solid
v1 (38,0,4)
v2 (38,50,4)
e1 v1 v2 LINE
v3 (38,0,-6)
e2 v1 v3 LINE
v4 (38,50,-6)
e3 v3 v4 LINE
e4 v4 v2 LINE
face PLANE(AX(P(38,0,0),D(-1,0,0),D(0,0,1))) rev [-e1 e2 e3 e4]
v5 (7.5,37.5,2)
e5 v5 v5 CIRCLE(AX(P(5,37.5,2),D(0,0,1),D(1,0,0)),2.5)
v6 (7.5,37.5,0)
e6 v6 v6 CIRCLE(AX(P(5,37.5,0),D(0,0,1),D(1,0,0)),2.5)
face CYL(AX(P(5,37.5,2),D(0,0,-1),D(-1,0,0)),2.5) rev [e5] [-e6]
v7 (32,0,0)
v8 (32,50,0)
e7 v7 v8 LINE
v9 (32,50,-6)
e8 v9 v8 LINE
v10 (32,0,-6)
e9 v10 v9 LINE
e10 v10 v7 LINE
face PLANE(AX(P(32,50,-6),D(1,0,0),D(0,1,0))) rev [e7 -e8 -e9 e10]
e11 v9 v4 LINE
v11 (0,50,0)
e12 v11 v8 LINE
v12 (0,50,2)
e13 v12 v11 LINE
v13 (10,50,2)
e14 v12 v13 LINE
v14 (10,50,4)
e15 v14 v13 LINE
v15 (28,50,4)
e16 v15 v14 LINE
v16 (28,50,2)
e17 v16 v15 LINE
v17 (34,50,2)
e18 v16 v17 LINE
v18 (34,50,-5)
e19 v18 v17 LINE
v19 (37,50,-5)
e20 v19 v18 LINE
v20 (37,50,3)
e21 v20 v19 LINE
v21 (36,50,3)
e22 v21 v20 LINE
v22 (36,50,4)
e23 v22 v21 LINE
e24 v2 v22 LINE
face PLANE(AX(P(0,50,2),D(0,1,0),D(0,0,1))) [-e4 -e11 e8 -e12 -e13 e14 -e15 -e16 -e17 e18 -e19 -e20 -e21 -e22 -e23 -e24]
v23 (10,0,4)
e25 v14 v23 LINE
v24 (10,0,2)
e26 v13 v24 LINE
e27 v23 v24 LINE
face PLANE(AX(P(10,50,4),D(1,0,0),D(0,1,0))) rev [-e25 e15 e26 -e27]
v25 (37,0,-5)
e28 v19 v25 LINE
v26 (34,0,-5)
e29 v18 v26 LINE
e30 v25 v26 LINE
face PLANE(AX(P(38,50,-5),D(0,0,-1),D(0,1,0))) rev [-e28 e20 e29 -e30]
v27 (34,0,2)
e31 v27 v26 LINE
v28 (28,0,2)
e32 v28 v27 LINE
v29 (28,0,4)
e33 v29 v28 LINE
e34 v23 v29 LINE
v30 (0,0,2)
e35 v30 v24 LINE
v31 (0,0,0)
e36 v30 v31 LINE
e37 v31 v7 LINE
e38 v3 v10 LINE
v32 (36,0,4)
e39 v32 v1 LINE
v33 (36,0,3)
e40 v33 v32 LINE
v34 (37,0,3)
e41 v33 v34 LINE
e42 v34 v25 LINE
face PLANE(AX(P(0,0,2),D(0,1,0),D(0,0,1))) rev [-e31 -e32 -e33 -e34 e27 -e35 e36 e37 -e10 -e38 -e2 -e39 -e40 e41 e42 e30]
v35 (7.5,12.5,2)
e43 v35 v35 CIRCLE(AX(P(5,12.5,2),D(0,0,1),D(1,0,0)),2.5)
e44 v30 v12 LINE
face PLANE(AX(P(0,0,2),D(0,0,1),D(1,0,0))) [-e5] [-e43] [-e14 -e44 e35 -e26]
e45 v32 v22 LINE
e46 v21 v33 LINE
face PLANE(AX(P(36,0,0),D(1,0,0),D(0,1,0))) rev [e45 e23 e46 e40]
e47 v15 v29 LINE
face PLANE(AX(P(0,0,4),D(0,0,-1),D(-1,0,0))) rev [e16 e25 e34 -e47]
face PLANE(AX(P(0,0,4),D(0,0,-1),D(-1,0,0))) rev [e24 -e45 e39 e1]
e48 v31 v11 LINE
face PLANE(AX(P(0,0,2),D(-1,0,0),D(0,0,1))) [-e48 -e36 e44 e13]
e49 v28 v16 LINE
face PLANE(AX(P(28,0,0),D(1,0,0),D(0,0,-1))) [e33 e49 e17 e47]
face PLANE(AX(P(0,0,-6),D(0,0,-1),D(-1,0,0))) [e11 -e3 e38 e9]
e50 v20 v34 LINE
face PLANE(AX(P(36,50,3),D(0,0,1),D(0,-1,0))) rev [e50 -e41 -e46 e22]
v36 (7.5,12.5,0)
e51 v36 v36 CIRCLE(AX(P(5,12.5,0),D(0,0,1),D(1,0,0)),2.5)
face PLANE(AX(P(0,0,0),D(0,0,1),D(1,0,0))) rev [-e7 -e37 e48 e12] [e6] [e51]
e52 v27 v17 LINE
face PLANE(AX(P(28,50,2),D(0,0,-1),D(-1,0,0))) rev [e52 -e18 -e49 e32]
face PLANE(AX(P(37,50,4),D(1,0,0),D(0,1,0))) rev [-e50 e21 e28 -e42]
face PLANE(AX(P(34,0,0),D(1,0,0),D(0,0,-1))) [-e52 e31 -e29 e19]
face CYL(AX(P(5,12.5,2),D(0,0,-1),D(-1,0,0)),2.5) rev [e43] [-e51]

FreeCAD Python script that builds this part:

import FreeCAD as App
import Part
import Sketcher
Q = App.Units.Quantity

doc = App.newDocument("Part")
body = doc.addObject("PartDesign::Body", "Body")

# Sketch on XY plane
sketch1 = doc.addObject("Sketcher::SketchObject", "Sketch")
body.addObject(sketch1)
sketch1.AttachmentSupport = (doc.XY_Plane, [""])
sketch1.MapMode = "FlatFace"
sketch1.addGeometry(Part.LineSegment(App.Vector(0, 50, 0), App.Vector(0, 0, 0)), False)
sketch1.addGeometry(Part.LineSegment(App.Vector(0, 0, 0), App.Vector(12, 0, 0)), False)
sketch1.addGeometry(Part.LineSegment(App.Vector(12, 0, 0), App.Vector(12, 50, 0)), False)
sketch1.addGeometry(Part.LineSegment(App.Vector(12, 50, 0), App.Vector(0, 50, 0)), False)
sketch1.addGeometry(Part.Circle(App.Vector(5, 12.5, 0), App.Vector(0, 0, 1), 2.5), False)
sketch1.addGeometry(Part.Circle(App.Vector(5, 37.5, 0), App.Vector(0, 0, 1), 2.5), False)
sketch1.addConstraint(Sketcher.Constraint("Coincident", 0, 2, 1, 1))
sketch1.addConstraint(Sketcher.Constraint("Coincident", 1, 2, 2, 1))
sketch1.addConstraint(Sketcher.Constraint("Coincident", 2, 2, 3, 1))
sketch1.addConstraint(Sketcher.Constraint("Coincident", 3, 2, 0, 1))
sketch1.addConstraint(Sketcher.Constraint("Vertical", 0))
sketch1.addConstraint(Sketcher.Constraint("Horizontal", 1))
sketch1.addConstraint(Sketcher.Constraint("Vertical", 2))
sketch1.addConstraint(Sketcher.Constraint("Horizontal", 3))
sketch1.addConstraint(Sketcher.Constraint("Coincident", 0, 2, -1, 1))
sketch1.addConstraint(Sketcher.Constraint("Equal", 4, 5))
sketch1.addConstraint(Sketcher.Constraint("Vertical", 4, 3, 5, 3))
sketch1.addConstraint(Sketcher.Constraint("Diameter", 4, Q("5 mm")))
sketch1.addConstraint(Sketcher.Constraint("DistanceX", 1, 1, 1, 2, Q("12 mm")))
sketch1.addConstraint(Sketcher.Constraint("DistanceY", 0, 2, 0, 1, Q("50 mm")))
sketch1.addConstraint(Sketcher.Constraint("DistanceX", -1, 1, 4, 3, Q("5 mm")))
sketch1.addConstraint(Sketcher.Constraint("DistanceY", 4, 3, 5, 3, Q("25 mm")))
sketch1.addConstraint(Sketcher.Constraint("DistanceY", -1, 1, 4, 3, Q("12.5 mm")))
pad1 = doc.addObject("PartDesign::Pad", "Pad")
body.addObject(pad1)
pad1.Profile = sketch1
pad1.Length = 2

# Sketch on XY plane
sketch2 = doc.addObject("Sketcher::SketchObject", "Sketch001")
body.addObject(sketch2)
sketch2.AttachmentSupport = (doc.XY_Plane, [""])
sketch2.MapMode = "FlatFace"
sketch2.AttachmentOffset = App.Placement(App.Vector(0, 0, 2), App.Rotation())
sketch2.addGeometry(Part.LineSegment(App.Vector(10, 50, 0), App.Vector(10, 0, 0)), False)
sketch2.addGeometry(Part.LineSegment(App.Vector(10, 0, 0), App.Vector(12, 0, 0)), False)
sketch2.addGeometry(Part.LineSegment(App.Vector(12, 0, 0), App.Vector(12, 50, 0)), False)
sketch2.addGeometry(Part.LineSegment(App.Vector(12, 50, 0), App.Vector(10, 50, 0)), False)
sketch2.addConstraint(Sketcher.Constraint("Coincident", 0, 2, 1, 1))
sketch2.addConstraint(Sketcher.Constraint("Coincident", 1, 2, 2, 1))
sketch2.addConstraint(Sketcher.Constraint("Coincident", 2, 2, 3, 1))
sketch2.addConstraint(Sketcher.Constraint("Coincident", 3, 2, 0, 1))
sketch2.addConstraint(Sketcher.Constraint("Vertical", 0))
sketch2.addConstraint(Sketcher.Constraint("Horizontal", 1))
sketch2.addConstraint(Sketcher.Constraint("Vertical", 2))
sketch2.addConstraint(Sketcher.Constraint("Horizontal", 3))
sketch2.addConstraint(Sketcher.Constraint("PointOnObject", 0, 2, -1))
sketch2.addConstraint(Sketcher.Constraint("DistanceX", 1, 1, 1, 2, Q("2 mm")))
sketch2.addConstraint(Sketcher.Constraint("DistanceY", 0, 2, 0, 1, Q("50 mm")))
sketch2.addConstraint(Sketcher.Constraint("DistanceX", -1, 1, 0, 2, Q("10 mm")))
pad2 = doc.addObject("PartDesign::Pad", "Pad001")
body.addObject(pad2)
pad2.Profile = sketch2
pad2.Length = 2

# Sketch on YZ plane
sketch3 = doc.addObject("Sketcher::SketchObject", "Sketch002")
body.addObject(sketch3)
sketch3.AttachmentSupport = (doc.YZ_Plane, [""])
sketch3.MapMode = "FlatFace"
sketch3.AttachmentOffset = App.Placement(App.Vector(0, 0, 12), App.Rotation())
sketch3.addGeometry(Part.LineSegment(App.Vector(50, 4, 0), App.Vector(0, 4, 0)), False)
sketch3.addGeometry(Part.LineSegment(App.Vector(0, 4, 0), App.Vector(0, 0, 0)), False)
sketch3.addGeometry(Part.LineSegment(App.Vector(0, 0, 0), App.Vector(50, 0, 0)), False)
sketch3.addGeometry(Part.LineSegment(App.Vector(50, 0, 0), App.Vector(50, 4, 0)), False)
sketch3.addConstraint(Sketcher.Constraint("Coincident", 0, 2, 1, 1))
sketch3.addConstraint(Sketcher.Constraint("Coincident", 1, 2, 2, 1))
sketch3.addConstraint(Sketcher.Constraint("Coincident", 2, 2, 3, 1))
sketch3.addConstraint(Sketcher.Constraint("Coincident", 3, 2, 0, 1))
sketch3.addConstraint(Sketcher.Constraint("Horizontal", 0))
sketch3.addConstraint(Sketcher.Constraint("Vertical", 1))
sketch3.addConstraint(Sketcher.Constraint("Horizontal", 2))
sketch3.addConstraint(Sketcher.Constraint("Vertical", 3))
sketch3.addConstraint(Sketcher.Constraint("Coincident", 1, 2, -1, 1))
sketch3.addConstraint(Sketcher.Constraint("DistanceX", 0, 2, 0, 1, Q("50 mm")))
sketch3.addConstraint(Sketcher.Constraint("DistanceY", 1, 2, 1, 1, Q("4 mm")))
pad3 = doc.addObject("PartDesign::Pad", "Pad002")
body.addObject(pad3)
pad3.Profile = sketch3
pad3.Length = 22

# Sketch on XY plane
sketch4 = doc.addObject("Sketcher::SketchObject", "Sketch003")
body.addObject(sketch4)
sketch4.AttachmentSupport = (doc.XY_Plane, [""])
sketch4.MapMode = "FlatFace"
sketch4.addGeometry(Part.LineSegment(App.Vector(34, 50, 0), App.Vector(34, 0, 0)), False)
sketch4.addGeometry(Part.LineSegment(App.Vector(34, 0, 0), App.Vector(32, 0, 0)), False)
sketch4.addGeometry(Part.LineSegment(App.Vector(32, 0, 0), App.Vector(32, 50, 0)), False)
sketch4.addGeometry(Part.LineSegment(App.Vector(32, 50, 0), App.Vector(34, 50, 0)), False)
sketch4.addConstraint(Sketcher.Constraint("Coincident", 0, 2, 1, 1))
sketch4.addConstraint(Sketcher.Constraint("Coincident", 1, 2, 2, 1))
sketch4.addConstraint(Sketcher.Constraint("Coincident", 2, 2, 3, 1))
sketch4.addConstraint(Sketcher.Constraint("Coincident", 3, 2, 0, 1))
sketch4.addConstraint(Sketcher.Constraint("Vertical", 0))
sketch4.addConstraint(Sketcher.Constraint("Horizontal", 1))
sketch4.addConstraint(Sketcher.Constraint("Vertical", 2))
sketch4.addConstraint(Sketcher.Constraint("Horizontal", 3))
sketch4.addConstraint(Sketcher.Constraint("PointOnObject", 0, 2, -1))
sketch4.addConstraint(Sketcher.Constraint("DistanceX", 1, 2, 1, 1, Q("2 mm")))
sketch4.addConstraint(Sketcher.Constraint("DistanceY", 0, 2, 0, 1, Q("50 mm")))
sketch4.addConstraint(Sketcher.Constraint("DistanceX", -1, 1, 0, 2, Q("34 mm")))
pad4 = doc.addObject("PartDesign::Pad", "Pad003")
body.addObject(pad4)
pad4.Profile = sketch4
pad4.Length = 6
pad4.Reversed = True

# Sketch on YZ plane
sketch5 = doc.addObject("Sketcher::SketchObject", "Sketch004")
body.addObject(sketch5)
sketch5.AttachmentSupport = (doc.YZ_Plane, [""])
sketch5.MapMode = "FlatFace"
sketch5.AttachmentOffset = App.Placement(App.Vector(0, 0, 34), App.Rotation())
sketch5.addGeometry(Part.LineSegment(App.Vector(50, 4, 0), App.Vector(0, 4, 0)), False)
sketch5.addGeometry(Part.LineSegment(App.Vector(0, 4, 0), App.Vector(0, 2, 0)), False)
sketch5.addGeometry(Part.LineSegment(App.Vector(0, 2, 0), App.Vector(50, 2, 0)), False)
sketch5.addGeometry(Part.LineSegment(App.Vector(50, 2, 0), App.Vector(50, 4, 0)), False)
sketch5.addConstraint(Sketcher.Constraint("Coincident", 0, 2, 1, 1))
sketch5.addConstraint(Sketcher.Constraint("Coincident", 1, 2, 2, 1))
sketch5.addConstraint(Sketcher.Constraint("Coincident", 2, 2, 3, 1))
sketch5.addConstraint(Sketcher.Constraint("Coincident", 3, 2, 0, 1))
sketch5.addConstraint(Sketcher.Constraint("Horizontal", 0))
sketch5.addConstraint(Sketcher.Constraint("Vertical", 1))
sketch5.addConstraint(Sketcher.Constraint("Horizontal", 2))
sketch5.addConstraint(Sketcher.Constraint("Vertical", 3))
sketch5.addConstraint(Sketcher.Constraint("PointOnObject", 0, 2, -2))
sketch5.addConstraint(Sketcher.Constraint("DistanceX", 0, 2, 0, 1, Q("50 mm")))
sketch5.addConstraint(Sketcher.Constraint("DistanceY", 1, 2, 1, 1, Q("2 mm")))
sketch5.addConstraint(Sketcher.Constraint("DistanceY", -1, 1, 0, 2, Q("4 mm")))
pocket1 = doc.addObject("PartDesign::Pocket", "Pocket")
body.addObject(pocket1)
pocket1.Profile = sketch5
pocket1.Length = 6

# Sketch on YZ plane
sketch6 = doc.addObject("Sketcher::SketchObject", "Sketch005")
body.addObject(sketch6)
sketch6.AttachmentSupport = (doc.YZ_Plane, [""])
sketch6.MapMode = "FlatFace"
sketch6.AttachmentOffset = App.Placement(App.Vector(0, 0, 34), App.Rotation())
sketch6.addGeometry(Part.LineSegment(App.Vector(50, -5, 0), App.Vector(0, -5, 0)), False)
sketch6.addGeometry(Part.LineSegment(App.Vector(0, -5, 0), App.Vector(0, -6, 0)), False)
sketch6.addGeometry(Part.LineSegment(App.Vector(0, -6, 0), App.Vector(50, -6, 0)), False)
sketch6.addGeometry(Part.LineSegment(App.Vector(50, -6, 0), App.Vector(50, -5, 0)), False)
sketch6.addConstraint(Sketcher.Constraint("Coincident", 0, 2, 1, 1))
sketch6.addConstraint(Sketcher.Constraint("Coincident", 1, 2, 2, 1))
sketch6.addConstraint(Sketcher.Constraint("Coincident", 2, 2, 3, 1))
sketch6.addConstraint(Sketcher.Constraint("Coincident", 3, 2, 0, 1))
sketch6.addConstraint(Sketcher.Constraint("Horizontal", 0))
sketch6.addConstraint(Sketcher.Constraint("Vertical", 1))
sketch6.addConstraint(Sketcher.Constraint("Horizontal", 2))
sketch6.addConstraint(Sketcher.Constraint("Vertical", 3))
sketch6.addConstraint(Sketcher.Constraint("PointOnObject", 0, 2, -2))
sketch6.addConstraint(Sketcher.Constraint("DistanceX", 0, 2, 0, 1, Q("50 mm")))
sketch6.addConstraint(Sketcher.Constraint("DistanceY", 1, 2, 1, 1, Q("1 mm")))
sketch6.addConstraint(Sketcher.Constraint("DistanceY", 0, 2, -1, 1, Q("5 mm")))
pad5 = doc.addObject("PartDesign::Pad", "Pad004")
body.addObject(pad5)
pad5.Profile = sketch6
pad5.Length = 4

# Sketch on XY plane
sketch7 = doc.addObject("Sketcher::SketchObject", "Sketch006")
body.addObject(sketch7)
sketch7.AttachmentSupport = (doc.XY_Plane, [""])
sketch7.MapMode = "FlatFace"
sketch7.AttachmentOffset = App.Placement(App.Vector(0, 0, -5), App.Rotation())
sketch7.addGeometry(Part.LineSegment(App.Vector(37, 50, 0), App.Vector(37, 0, 0)), False)
sketch7.addGeometry(Part.LineSegment(App.Vector(37, 0, 0), App.Vector(38, 0, 0)), False)
sketch7.addGeometry(Part.LineSegment(App.Vector(38, 0, 0), App.Vector(38, 50, 0)), False)
sketch7.addGeometry(Part.LineSegment(App.Vector(38, 50, 0), App.Vector(37, 50, 0)), False)
sketch7.addConstraint(Sketcher.Constraint("Coincident", 0, 2, 1, 1))
sketch7.addConstraint(Sketcher.Constraint("Coincident", 1, 2, 2, 1))
sketch7.addConstraint(Sketcher.Constraint("Coincident", 2, 2, 3, 1))
sketch7.addConstraint(Sketcher.Constraint("Coincident", 3, 2, 0, 1))
sketch7.addConstraint(Sketcher.Constraint("Vertical", 0))
sketch7.addConstraint(Sketcher.Constraint("Horizontal", 1))
sketch7.addConstraint(Sketcher.Constraint("Vertical", 2))
sketch7.addConstraint(Sketcher.Constraint("Horizontal", 3))
sketch7.addConstraint(Sketcher.Constraint("PointOnObject", 0, 2, -1))
sketch7.addConstraint(Sketcher.Constraint("DistanceX", 1, 1, 1, 2, Q("1 mm")))
sketch7.addConstraint(Sketcher.Constraint("DistanceY", 0, 2, 0, 1, Q("50 mm")))
sketch7.addConstraint(Sketcher.Constraint("DistanceX", -1, 1, 0, 2, Q("37 mm")))
pad6 = doc.addObject("PartDesign::Pad", "Pad005")
body.addObject(pad6)
pad6.Profile = sketch7
pad6.Length = 9

# Sketch on YZ plane
sketch8 = doc.addObject("Sketcher::SketchObject", "Sketch007")
body.addObject(sketch8)
sketch8.AttachmentSupport = (doc.YZ_Plane, [""])
sketch8.MapMode = "FlatFace"
sketch8.AttachmentOffset = App.Placement(App.Vector(0, 0, 37), App.Rotation())
sketch8.addGeometry(Part.LineSegment(App.Vector(50, 3, 0), App.Vector(0, 3, 0)), False)
sketch8.addGeometry(Part.LineSegment(App.Vector(0, 3, 0), App.Vector(0, 4, 0)), False)
sketch8.addGeometry(Part.LineSegment(App.Vector(0, 4, 0), App.Vector(50, 4, 0)), False)
sketch8.addGeometry(Part.LineSegment(App.Vector(50, 4, 0), App.Vector(50, 3, 0)), False)
sketch8.addConstraint(Sketcher.Constraint("Coincident", 0, 2, 1, 1))
sketch8.addConstraint(Sketcher.Constraint("Coincident", 1, 2, 2, 1))
sketch8.addConstraint(Sketcher.Constraint("Coincident", 2, 2, 3, 1))
sketch8.addConstraint(Sketcher.Constraint("Coincident", 3, 2, 0, 1))
sketch8.addConstraint(Sketcher.Constraint("Horizontal", 0))
sketch8.addConstraint(Sketcher.Constraint("Vertical", 1))
sketch8.addConstraint(Sketcher.Constraint("Horizontal", 2))
sketch8.addConstraint(Sketcher.Constraint("Vertical", 3))
sketch8.addConstraint(Sketcher.Constraint("PointOnObject", 0, 2, -2))
sketch8.addConstraint(Sketcher.Constraint("DistanceX", 0, 2, 0, 1, Q("50 mm")))
sketch8.addConstraint(Sketcher.Constraint("DistanceY", 1, 1, 1, 2, Q("1 mm")))
sketch8.addConstraint(Sketcher.Constraint("DistanceY", -1, 1, 0, 2, Q("3 mm")))
pad7 = doc.addObject("PartDesign::Pad", "Pad006")
body.addObject(pad7)
pad7.Profile = sketch8
pad7.Length = 1
pad7.Reversed = True

doc.recompute()
